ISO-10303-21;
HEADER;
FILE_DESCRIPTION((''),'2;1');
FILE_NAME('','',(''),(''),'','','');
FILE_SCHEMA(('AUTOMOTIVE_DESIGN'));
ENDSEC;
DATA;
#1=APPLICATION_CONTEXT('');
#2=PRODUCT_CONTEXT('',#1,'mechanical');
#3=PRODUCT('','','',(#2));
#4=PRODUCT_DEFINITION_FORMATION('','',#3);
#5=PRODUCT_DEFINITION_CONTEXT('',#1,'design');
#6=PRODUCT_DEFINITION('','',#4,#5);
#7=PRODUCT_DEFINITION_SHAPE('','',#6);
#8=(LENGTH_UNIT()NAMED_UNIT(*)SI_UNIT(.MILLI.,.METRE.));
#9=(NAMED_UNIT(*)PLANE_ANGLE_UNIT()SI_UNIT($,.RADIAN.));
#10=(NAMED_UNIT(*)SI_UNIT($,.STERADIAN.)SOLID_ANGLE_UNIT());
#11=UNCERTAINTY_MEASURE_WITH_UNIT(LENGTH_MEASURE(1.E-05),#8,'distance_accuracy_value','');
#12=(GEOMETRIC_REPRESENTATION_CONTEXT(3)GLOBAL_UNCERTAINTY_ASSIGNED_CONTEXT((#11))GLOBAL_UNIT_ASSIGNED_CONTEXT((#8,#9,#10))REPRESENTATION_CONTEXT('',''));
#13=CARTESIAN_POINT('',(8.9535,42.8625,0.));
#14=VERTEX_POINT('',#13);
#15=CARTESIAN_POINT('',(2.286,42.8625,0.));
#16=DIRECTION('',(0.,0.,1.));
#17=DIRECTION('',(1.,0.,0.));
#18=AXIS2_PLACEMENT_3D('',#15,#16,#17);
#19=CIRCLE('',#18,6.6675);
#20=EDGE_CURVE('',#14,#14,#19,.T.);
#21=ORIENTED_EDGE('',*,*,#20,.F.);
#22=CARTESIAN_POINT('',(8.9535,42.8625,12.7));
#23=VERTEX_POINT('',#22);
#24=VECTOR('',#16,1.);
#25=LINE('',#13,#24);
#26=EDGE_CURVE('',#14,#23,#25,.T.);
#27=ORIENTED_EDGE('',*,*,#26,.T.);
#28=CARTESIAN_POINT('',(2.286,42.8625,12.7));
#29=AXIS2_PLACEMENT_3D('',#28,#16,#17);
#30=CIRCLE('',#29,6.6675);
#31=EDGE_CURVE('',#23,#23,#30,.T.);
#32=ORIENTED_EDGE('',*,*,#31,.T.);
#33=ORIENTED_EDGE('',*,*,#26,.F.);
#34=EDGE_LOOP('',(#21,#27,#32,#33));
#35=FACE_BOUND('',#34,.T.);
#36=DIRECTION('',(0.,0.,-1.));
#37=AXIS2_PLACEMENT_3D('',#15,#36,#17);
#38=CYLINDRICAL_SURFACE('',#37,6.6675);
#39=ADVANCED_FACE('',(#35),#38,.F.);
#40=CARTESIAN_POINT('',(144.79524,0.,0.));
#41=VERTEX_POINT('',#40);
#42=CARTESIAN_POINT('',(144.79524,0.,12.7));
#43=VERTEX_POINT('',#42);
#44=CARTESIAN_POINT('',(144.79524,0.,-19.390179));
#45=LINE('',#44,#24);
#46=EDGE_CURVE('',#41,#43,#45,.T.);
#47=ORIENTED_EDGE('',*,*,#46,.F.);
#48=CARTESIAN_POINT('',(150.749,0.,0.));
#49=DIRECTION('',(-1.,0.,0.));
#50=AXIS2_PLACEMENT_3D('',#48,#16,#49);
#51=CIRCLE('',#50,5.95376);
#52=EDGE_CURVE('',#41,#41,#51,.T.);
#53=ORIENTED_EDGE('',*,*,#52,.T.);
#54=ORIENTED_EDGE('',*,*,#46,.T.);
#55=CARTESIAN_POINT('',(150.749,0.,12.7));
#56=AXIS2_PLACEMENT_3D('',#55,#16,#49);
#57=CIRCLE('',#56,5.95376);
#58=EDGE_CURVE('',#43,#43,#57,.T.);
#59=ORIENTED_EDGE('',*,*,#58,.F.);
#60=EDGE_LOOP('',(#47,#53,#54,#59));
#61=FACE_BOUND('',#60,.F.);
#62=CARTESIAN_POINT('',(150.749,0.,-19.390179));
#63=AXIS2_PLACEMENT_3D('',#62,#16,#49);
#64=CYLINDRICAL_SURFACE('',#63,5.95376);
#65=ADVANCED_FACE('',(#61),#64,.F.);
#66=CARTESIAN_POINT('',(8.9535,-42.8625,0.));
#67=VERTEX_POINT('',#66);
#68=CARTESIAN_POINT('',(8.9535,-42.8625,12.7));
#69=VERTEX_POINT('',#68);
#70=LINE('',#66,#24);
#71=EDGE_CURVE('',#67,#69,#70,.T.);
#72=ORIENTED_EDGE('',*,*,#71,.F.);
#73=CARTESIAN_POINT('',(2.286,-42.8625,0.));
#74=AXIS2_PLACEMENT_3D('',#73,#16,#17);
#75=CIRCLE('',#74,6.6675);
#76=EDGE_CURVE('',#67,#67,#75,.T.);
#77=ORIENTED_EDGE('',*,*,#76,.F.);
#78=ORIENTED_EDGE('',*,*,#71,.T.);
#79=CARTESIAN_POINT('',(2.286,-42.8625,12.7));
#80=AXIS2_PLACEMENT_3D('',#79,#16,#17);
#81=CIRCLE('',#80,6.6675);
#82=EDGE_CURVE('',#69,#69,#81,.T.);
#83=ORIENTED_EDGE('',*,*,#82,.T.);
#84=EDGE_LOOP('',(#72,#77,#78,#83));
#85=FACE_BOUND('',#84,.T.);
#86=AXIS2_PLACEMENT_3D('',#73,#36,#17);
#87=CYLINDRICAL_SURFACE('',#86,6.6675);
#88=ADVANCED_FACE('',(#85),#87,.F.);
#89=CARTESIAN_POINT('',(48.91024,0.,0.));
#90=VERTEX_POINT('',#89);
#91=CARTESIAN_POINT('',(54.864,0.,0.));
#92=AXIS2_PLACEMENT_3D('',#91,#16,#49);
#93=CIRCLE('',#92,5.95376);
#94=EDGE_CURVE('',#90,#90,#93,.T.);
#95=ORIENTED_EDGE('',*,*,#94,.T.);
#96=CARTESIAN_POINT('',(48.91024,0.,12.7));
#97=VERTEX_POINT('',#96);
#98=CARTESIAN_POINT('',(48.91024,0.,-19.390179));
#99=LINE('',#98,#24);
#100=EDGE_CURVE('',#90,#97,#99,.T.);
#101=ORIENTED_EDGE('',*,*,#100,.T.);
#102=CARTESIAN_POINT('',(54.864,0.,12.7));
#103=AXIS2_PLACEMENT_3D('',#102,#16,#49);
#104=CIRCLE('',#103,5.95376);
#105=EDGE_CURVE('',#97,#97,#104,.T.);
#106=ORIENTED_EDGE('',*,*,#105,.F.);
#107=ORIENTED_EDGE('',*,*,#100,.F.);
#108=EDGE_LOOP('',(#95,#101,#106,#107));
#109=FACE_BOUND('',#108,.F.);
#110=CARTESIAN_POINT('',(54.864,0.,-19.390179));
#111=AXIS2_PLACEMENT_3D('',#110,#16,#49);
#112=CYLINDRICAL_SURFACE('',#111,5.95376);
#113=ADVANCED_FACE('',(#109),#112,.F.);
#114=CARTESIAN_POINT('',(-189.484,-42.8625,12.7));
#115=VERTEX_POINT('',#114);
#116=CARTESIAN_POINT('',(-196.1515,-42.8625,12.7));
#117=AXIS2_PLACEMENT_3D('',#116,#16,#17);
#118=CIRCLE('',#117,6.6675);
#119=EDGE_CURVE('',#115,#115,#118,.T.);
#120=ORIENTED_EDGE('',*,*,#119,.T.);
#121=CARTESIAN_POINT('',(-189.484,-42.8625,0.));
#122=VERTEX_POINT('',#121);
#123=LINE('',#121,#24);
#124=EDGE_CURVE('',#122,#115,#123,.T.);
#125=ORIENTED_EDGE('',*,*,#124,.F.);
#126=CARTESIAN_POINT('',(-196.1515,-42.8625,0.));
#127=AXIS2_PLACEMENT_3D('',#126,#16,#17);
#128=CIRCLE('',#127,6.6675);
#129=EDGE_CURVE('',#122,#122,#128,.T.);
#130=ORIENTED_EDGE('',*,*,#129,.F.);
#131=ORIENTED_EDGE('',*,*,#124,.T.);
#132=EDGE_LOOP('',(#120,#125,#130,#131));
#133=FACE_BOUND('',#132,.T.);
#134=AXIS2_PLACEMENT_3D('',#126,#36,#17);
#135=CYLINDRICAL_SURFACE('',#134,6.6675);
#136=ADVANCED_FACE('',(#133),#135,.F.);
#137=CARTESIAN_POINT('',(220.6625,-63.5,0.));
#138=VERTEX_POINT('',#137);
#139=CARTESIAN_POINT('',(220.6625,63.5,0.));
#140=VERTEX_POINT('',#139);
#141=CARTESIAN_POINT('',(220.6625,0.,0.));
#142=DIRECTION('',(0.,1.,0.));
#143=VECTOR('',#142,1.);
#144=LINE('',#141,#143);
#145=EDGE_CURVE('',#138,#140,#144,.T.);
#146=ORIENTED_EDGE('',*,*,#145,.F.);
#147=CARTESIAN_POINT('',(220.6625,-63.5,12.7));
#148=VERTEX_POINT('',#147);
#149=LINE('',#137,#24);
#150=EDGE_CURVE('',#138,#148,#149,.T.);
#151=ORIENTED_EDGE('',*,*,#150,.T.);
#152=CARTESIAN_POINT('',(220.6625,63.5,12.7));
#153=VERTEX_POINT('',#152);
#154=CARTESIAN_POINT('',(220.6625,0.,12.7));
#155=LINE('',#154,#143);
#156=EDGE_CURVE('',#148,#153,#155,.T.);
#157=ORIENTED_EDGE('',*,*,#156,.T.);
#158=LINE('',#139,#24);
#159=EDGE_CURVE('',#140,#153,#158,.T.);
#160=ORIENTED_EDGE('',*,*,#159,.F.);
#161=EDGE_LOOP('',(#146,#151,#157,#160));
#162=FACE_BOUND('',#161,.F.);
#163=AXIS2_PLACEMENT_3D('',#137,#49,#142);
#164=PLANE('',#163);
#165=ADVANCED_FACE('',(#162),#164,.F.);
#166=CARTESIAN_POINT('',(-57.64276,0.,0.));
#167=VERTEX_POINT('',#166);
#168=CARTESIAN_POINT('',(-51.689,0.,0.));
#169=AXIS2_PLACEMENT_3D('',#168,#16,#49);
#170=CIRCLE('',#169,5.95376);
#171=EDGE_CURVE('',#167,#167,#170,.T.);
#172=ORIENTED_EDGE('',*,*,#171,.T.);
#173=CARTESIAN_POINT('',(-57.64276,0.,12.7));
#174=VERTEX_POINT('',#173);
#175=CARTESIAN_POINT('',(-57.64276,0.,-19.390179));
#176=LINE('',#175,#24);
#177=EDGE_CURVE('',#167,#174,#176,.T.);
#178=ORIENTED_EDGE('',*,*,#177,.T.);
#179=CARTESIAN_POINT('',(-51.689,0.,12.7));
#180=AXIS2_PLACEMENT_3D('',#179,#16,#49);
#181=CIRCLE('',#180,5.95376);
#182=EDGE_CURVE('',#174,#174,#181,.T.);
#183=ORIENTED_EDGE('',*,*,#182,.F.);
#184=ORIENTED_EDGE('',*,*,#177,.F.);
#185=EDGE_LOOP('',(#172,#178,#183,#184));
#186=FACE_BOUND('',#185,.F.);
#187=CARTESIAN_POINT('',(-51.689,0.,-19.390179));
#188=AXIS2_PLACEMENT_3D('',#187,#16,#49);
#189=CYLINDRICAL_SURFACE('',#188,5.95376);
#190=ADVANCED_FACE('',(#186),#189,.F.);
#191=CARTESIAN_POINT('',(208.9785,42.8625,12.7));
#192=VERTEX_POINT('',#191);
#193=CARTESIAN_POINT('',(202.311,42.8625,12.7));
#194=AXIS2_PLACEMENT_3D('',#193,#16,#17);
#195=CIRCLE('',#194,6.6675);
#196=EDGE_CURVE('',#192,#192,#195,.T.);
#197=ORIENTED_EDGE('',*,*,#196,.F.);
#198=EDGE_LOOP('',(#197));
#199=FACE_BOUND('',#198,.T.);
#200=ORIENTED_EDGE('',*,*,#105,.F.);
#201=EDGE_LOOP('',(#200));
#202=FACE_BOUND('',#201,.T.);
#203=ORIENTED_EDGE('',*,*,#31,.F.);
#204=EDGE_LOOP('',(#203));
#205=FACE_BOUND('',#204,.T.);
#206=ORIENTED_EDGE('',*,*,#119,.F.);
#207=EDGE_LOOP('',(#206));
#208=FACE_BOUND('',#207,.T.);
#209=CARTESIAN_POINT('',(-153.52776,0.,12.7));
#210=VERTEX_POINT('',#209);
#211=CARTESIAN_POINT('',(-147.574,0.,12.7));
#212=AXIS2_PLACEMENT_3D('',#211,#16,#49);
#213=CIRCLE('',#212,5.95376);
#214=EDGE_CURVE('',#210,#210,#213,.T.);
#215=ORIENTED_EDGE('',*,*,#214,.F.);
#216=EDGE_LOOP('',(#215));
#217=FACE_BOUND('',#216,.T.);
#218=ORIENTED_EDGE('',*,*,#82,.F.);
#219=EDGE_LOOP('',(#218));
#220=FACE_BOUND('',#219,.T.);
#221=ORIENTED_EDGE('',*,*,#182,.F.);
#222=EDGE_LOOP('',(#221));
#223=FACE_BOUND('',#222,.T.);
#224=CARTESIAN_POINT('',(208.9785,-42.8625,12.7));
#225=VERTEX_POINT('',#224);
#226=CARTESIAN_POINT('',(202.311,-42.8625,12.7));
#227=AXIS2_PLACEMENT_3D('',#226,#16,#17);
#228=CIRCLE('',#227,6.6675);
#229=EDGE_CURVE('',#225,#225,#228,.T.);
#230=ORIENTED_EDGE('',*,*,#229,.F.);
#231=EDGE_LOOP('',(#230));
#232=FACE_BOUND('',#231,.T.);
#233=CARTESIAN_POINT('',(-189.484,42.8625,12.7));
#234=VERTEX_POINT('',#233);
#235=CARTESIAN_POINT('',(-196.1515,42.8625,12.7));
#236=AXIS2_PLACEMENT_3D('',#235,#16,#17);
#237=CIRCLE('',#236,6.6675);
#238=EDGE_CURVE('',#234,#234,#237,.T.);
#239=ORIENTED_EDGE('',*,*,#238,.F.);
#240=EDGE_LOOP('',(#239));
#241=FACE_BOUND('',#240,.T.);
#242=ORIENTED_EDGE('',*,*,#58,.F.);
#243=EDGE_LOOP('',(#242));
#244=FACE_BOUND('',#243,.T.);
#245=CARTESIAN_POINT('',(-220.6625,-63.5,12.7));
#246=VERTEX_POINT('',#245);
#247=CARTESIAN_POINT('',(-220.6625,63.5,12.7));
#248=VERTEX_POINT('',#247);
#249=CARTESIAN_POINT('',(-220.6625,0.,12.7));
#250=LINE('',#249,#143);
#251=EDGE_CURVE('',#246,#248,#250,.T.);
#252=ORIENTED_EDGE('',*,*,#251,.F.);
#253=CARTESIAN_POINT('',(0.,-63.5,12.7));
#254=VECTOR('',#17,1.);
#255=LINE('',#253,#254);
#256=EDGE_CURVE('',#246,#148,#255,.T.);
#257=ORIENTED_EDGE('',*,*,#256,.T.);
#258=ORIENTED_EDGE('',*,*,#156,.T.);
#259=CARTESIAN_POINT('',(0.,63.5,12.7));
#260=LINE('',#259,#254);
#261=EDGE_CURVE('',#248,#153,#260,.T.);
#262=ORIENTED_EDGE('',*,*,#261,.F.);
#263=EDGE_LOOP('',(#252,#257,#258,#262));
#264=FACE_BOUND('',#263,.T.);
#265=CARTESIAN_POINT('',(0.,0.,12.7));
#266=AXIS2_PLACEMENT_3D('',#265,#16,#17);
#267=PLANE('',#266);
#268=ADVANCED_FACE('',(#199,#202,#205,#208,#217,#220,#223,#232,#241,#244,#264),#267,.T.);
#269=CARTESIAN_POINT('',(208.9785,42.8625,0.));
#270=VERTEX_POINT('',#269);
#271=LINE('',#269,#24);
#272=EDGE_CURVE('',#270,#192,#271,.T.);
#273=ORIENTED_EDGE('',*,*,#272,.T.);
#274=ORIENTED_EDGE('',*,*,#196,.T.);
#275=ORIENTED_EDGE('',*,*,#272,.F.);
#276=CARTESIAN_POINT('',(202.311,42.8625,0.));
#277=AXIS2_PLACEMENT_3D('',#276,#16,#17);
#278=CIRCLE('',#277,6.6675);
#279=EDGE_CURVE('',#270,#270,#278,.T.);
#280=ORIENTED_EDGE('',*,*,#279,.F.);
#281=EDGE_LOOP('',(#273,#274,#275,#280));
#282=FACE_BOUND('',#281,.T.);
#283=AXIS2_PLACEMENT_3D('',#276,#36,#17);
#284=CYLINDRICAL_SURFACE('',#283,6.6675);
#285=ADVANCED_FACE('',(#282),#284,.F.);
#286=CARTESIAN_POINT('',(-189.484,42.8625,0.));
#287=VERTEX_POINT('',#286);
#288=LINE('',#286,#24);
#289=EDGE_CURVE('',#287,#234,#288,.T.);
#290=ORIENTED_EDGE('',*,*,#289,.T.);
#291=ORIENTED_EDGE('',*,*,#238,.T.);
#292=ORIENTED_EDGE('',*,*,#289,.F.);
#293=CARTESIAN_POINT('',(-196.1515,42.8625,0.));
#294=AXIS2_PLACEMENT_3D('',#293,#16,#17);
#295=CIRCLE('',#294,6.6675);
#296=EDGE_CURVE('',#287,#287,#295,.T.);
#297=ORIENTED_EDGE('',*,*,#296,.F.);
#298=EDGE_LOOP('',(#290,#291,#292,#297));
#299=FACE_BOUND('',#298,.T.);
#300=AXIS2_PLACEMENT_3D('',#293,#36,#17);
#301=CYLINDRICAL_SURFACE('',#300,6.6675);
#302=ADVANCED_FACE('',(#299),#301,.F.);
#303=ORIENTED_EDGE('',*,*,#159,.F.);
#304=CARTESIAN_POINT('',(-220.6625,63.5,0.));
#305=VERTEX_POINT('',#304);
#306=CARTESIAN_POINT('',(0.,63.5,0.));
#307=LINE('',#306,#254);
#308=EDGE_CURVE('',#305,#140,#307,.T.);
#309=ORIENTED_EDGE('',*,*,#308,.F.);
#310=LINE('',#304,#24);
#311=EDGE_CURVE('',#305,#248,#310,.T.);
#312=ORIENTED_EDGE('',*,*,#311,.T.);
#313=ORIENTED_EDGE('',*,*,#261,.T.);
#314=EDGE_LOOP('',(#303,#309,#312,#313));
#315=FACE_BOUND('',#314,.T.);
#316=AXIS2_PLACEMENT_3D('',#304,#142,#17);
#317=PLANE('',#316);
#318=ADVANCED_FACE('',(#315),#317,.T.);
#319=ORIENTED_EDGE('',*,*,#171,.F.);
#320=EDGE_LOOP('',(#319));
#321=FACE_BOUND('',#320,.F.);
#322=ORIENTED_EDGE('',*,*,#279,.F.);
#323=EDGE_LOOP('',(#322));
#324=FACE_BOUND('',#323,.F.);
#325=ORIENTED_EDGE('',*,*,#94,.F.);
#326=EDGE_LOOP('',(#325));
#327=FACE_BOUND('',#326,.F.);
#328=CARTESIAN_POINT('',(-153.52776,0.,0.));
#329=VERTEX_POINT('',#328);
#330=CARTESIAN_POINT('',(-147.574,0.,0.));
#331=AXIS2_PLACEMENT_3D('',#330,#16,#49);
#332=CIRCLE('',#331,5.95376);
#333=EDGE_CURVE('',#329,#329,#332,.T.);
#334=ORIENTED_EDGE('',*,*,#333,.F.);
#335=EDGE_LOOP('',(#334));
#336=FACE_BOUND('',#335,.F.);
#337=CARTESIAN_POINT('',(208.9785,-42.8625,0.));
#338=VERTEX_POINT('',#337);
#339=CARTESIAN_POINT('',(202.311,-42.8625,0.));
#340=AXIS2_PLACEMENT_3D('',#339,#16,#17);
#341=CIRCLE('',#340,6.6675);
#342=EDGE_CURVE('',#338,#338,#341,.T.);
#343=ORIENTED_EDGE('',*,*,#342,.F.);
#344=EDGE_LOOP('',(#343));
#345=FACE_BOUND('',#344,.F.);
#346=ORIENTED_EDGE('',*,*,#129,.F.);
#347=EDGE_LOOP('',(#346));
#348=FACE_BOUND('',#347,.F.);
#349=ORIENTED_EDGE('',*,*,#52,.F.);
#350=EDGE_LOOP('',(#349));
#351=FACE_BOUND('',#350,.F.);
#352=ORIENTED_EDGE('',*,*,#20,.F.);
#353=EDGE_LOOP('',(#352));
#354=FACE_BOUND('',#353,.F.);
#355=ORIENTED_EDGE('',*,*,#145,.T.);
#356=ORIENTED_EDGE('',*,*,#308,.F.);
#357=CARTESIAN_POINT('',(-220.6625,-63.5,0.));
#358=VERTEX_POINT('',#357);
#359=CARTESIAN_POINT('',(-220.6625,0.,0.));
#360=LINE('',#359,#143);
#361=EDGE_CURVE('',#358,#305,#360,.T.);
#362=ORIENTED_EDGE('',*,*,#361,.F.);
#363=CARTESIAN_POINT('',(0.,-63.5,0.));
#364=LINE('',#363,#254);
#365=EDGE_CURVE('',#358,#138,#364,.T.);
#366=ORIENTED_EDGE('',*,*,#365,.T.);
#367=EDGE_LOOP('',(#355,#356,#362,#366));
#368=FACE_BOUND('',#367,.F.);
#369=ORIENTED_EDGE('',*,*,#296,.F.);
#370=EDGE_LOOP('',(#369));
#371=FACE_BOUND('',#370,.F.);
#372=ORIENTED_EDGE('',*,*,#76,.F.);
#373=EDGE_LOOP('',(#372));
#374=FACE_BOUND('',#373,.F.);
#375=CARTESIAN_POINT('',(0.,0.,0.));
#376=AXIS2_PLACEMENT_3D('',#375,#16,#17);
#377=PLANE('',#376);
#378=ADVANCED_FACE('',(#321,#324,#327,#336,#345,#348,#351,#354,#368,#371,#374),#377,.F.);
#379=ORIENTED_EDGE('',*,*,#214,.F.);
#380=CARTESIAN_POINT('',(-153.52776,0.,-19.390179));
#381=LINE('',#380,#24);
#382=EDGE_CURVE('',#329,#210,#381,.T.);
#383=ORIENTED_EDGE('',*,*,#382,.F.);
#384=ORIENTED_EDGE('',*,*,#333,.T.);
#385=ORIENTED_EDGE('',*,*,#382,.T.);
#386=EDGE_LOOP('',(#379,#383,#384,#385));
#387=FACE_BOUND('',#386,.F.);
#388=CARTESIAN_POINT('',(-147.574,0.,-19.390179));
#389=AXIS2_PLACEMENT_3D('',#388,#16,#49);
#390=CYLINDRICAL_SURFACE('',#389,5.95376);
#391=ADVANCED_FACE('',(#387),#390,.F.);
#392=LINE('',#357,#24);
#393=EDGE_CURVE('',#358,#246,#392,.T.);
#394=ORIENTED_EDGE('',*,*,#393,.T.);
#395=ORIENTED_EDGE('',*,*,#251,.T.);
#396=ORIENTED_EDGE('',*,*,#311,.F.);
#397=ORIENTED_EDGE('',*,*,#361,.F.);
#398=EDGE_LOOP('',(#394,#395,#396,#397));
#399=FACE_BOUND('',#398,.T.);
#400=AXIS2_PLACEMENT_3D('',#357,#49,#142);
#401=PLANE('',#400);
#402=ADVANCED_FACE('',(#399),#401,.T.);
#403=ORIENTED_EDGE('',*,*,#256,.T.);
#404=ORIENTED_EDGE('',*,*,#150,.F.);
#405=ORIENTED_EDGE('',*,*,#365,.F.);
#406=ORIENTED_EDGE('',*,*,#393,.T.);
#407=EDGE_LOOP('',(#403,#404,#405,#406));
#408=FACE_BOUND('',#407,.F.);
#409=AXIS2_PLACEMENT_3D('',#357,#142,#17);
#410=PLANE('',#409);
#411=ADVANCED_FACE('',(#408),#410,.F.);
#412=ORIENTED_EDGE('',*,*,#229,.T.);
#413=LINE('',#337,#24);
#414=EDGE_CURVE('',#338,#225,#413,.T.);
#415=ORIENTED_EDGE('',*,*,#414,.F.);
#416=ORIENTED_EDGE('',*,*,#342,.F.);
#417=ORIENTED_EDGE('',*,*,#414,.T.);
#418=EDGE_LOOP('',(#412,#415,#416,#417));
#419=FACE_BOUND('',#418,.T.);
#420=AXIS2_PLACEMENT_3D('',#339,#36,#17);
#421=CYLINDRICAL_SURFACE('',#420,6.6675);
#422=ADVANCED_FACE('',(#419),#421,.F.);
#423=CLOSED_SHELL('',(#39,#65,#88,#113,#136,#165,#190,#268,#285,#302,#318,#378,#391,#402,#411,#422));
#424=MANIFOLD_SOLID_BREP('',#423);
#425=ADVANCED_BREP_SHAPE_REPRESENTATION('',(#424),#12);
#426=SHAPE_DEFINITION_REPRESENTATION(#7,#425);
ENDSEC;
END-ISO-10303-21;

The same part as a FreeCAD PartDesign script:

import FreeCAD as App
import Part
import Sketcher
from FreeCAD import Vector
Q = App.Units.Quantity

doc = App.newDocument("Part")
body = doc.addObject("PartDesign::Body", "Body")

# Sketch on XY plane
sketch1 = doc.addObject("Sketcher::SketchObject", "Sketch")
body.addObject(sketch1)
sketch1.AttachmentSupport = (doc.XY_Plane, [""])
sketch1.MapMode = "FlatFace"
sketch1.addGeometry([
    Part.LineSegment(Vector(-220.6625, 63.5, 0), Vector(-220.6625, -63.5, 0)),  # 0
    Part.LineSegment(Vector(-220.6625, -63.5, 0), Vector(220.6625, -63.5, 0)),  # 1
    Part.LineSegment(Vector(220.6625, -63.5, 0), Vector(220.6625, 63.5, 0)),  # 2
    Part.LineSegment(Vector(220.6625, 63.5, 0), Vector(-220.6625, 63.5, 0)),  # 3
    Part.Circle(Vector(-196.1515, -42.8625, 0), Vector(0, 0, 1), 6.6675),  # 4
    Part.Circle(Vector(2.286, -42.8625, 0), Vector(0, 0, 1), 6.6675),  # 5
    Part.Circle(Vector(202.311, -42.8625, 0), Vector(0, 0, 1), 6.6675),  # 6
    Part.Circle(Vector(-196.1515, 42.8625, 0), Vector(0, 0, 1), 6.6675),  # 7
    Part.Circle(Vector(2.286, 42.8625, 0), Vector(0, 0, 1), 6.6675),  # 8
    Part.Circle(Vector(202.311, 42.8625, 0), Vector(0, 0, 1), 6.6675),  # 9
], False)
sketch1.addConstraint([
    Sketcher.Constraint("Coincident", 0, 2, 1, 1),
    Sketcher.Constraint("Coincident", 1, 2, 2, 1),
    Sketcher.Constraint("Coincident", 2, 2, 3, 1),
    Sketcher.Constraint("Coincident", 3, 2, 0, 1),
    Sketcher.Constraint("Vertical", 0),
    Sketcher.Constraint("Horizontal", 1),
    Sketcher.Constraint("Vertical", 2),
    Sketcher.Constraint("Horizontal", 3),
    Sketcher.Constraint("Equal", 4, 5),
    Sketcher.Constraint("Equal", 5, 6),
    Sketcher.Constraint("Equal", 6, 7),
    Sketcher.Constraint("Equal", 7, 8),
    Sketcher.Constraint("Equal", 8, 9),
    Sketcher.Constraint("Symmetric", 0, 2, 2, 2, -1, 1),
    Sketcher.Constraint("Symmetric", 4, 3, 7, 3, -1),
    Sketcher.Constraint("Symmetric", 5, 3, 8, 3, -1),
    Sketcher.Constraint("Symmetric", 6, 3, 9, 3, -1),
    Sketcher.Constraint("Horizontal", 4, 3, 5, 3),
    Sketcher.Constraint("Horizontal", 5, 3, 6, 3),
    Sketcher.Constraint("DistanceY", 0, 2, 0, 1, Q("5 in")),
    Sketcher.Constraint("Diameter", 4, Q("0.525 in")),
    Sketcher.Constraint("DistanceX", 1, 1, 1, 2, Q("17.375 in")),
    Sketcher.Constraint("DistanceX", -1, 1, 5, 3, Q("0.09 in")),
    Sketcher.Constraint("DistanceX", 4, 3, 1, 2, Q("16.41 in")),
    Sketcher.Constraint("DistanceY", 4, 3, -1, 1, Q("1.6875 in")),
    Sketcher.Constraint("DistanceX", -1, 1, 6, 3, Q("7.965 in")),
])
pad1 = doc.addObject("PartDesign::Pad", "Pad")
body.addObject(pad1)
pad1.Profile = sketch1
pad1.Length = Q("0.5 in")

# Sketch on XY plane
sketch2 = doc.addObject("Sketcher::SketchObject", "Sketch001")
body.addObject(sketch2)
sketch2.AttachmentSupport = (doc.XY_Plane, [""])
sketch2.MapMode = "FlatFace"
sketch2.addGeometry([
    Part.Circle(Vector(-147.574, 0, 0), Vector(0, 0, 1), 5.95376),
    Part.Circle(Vector(-51.689, 0, 0), Vector(0, 0, 1), 5.95376),
    Part.Circle(Vector(54.864, 0, 0), Vector(0, 0, 1), 5.95376),
    Part.Circle(Vector(150.749, 0, 0), Vector(0, 0, 1), 5.95376),
], False)
sketch2.addConstraint([
    Sketcher.Constraint("Equal", 0, 1),
    Sketcher.Constraint("Equal", 1, 2),
    Sketcher.Constraint("Equal", 2, 3),
    Sketcher.Constraint("PointOnObject", 0, 3, -1),
    Sketcher.Constraint("PointOnObject", 1, 3, -1),
    Sketcher.Constraint("PointOnObject", 2, 3, -1),
    Sketcher.Constraint("PointOnObject", 3, 3, -1),
    Sketcher.Constraint("Diameter", 0, Q("0.4688 in")),
    Sketcher.Constraint("DistanceX", 0, 3, -1, 1, Q("5.81 in")),
    Sketcher.Constraint("DistanceX", -1, 1, 2, 3, Q("2.16 in")),
    Sketcher.Constraint("DistanceX", 1, 3, 3, 3, Q("7.97 in")),
    Sketcher.Constraint("DistanceX", 1, 3, -1, 1, Q("2.035 in")),
])
doc.recompute()
hole = doc.addObject("PartDesign::Hole", "Hole")
body.addObject(hole)
hole.Profile = sketch2
hole.ThreadType = "None"
hole.Diameter = Q("0.4688 in")
hole.DepthType = "Dimension"
hole.Depth = 19.390179
hole.DrillPoint = "Angled"
hole.DrillPointAngle = 118
hole.Reversed = True

doc.recompute()
